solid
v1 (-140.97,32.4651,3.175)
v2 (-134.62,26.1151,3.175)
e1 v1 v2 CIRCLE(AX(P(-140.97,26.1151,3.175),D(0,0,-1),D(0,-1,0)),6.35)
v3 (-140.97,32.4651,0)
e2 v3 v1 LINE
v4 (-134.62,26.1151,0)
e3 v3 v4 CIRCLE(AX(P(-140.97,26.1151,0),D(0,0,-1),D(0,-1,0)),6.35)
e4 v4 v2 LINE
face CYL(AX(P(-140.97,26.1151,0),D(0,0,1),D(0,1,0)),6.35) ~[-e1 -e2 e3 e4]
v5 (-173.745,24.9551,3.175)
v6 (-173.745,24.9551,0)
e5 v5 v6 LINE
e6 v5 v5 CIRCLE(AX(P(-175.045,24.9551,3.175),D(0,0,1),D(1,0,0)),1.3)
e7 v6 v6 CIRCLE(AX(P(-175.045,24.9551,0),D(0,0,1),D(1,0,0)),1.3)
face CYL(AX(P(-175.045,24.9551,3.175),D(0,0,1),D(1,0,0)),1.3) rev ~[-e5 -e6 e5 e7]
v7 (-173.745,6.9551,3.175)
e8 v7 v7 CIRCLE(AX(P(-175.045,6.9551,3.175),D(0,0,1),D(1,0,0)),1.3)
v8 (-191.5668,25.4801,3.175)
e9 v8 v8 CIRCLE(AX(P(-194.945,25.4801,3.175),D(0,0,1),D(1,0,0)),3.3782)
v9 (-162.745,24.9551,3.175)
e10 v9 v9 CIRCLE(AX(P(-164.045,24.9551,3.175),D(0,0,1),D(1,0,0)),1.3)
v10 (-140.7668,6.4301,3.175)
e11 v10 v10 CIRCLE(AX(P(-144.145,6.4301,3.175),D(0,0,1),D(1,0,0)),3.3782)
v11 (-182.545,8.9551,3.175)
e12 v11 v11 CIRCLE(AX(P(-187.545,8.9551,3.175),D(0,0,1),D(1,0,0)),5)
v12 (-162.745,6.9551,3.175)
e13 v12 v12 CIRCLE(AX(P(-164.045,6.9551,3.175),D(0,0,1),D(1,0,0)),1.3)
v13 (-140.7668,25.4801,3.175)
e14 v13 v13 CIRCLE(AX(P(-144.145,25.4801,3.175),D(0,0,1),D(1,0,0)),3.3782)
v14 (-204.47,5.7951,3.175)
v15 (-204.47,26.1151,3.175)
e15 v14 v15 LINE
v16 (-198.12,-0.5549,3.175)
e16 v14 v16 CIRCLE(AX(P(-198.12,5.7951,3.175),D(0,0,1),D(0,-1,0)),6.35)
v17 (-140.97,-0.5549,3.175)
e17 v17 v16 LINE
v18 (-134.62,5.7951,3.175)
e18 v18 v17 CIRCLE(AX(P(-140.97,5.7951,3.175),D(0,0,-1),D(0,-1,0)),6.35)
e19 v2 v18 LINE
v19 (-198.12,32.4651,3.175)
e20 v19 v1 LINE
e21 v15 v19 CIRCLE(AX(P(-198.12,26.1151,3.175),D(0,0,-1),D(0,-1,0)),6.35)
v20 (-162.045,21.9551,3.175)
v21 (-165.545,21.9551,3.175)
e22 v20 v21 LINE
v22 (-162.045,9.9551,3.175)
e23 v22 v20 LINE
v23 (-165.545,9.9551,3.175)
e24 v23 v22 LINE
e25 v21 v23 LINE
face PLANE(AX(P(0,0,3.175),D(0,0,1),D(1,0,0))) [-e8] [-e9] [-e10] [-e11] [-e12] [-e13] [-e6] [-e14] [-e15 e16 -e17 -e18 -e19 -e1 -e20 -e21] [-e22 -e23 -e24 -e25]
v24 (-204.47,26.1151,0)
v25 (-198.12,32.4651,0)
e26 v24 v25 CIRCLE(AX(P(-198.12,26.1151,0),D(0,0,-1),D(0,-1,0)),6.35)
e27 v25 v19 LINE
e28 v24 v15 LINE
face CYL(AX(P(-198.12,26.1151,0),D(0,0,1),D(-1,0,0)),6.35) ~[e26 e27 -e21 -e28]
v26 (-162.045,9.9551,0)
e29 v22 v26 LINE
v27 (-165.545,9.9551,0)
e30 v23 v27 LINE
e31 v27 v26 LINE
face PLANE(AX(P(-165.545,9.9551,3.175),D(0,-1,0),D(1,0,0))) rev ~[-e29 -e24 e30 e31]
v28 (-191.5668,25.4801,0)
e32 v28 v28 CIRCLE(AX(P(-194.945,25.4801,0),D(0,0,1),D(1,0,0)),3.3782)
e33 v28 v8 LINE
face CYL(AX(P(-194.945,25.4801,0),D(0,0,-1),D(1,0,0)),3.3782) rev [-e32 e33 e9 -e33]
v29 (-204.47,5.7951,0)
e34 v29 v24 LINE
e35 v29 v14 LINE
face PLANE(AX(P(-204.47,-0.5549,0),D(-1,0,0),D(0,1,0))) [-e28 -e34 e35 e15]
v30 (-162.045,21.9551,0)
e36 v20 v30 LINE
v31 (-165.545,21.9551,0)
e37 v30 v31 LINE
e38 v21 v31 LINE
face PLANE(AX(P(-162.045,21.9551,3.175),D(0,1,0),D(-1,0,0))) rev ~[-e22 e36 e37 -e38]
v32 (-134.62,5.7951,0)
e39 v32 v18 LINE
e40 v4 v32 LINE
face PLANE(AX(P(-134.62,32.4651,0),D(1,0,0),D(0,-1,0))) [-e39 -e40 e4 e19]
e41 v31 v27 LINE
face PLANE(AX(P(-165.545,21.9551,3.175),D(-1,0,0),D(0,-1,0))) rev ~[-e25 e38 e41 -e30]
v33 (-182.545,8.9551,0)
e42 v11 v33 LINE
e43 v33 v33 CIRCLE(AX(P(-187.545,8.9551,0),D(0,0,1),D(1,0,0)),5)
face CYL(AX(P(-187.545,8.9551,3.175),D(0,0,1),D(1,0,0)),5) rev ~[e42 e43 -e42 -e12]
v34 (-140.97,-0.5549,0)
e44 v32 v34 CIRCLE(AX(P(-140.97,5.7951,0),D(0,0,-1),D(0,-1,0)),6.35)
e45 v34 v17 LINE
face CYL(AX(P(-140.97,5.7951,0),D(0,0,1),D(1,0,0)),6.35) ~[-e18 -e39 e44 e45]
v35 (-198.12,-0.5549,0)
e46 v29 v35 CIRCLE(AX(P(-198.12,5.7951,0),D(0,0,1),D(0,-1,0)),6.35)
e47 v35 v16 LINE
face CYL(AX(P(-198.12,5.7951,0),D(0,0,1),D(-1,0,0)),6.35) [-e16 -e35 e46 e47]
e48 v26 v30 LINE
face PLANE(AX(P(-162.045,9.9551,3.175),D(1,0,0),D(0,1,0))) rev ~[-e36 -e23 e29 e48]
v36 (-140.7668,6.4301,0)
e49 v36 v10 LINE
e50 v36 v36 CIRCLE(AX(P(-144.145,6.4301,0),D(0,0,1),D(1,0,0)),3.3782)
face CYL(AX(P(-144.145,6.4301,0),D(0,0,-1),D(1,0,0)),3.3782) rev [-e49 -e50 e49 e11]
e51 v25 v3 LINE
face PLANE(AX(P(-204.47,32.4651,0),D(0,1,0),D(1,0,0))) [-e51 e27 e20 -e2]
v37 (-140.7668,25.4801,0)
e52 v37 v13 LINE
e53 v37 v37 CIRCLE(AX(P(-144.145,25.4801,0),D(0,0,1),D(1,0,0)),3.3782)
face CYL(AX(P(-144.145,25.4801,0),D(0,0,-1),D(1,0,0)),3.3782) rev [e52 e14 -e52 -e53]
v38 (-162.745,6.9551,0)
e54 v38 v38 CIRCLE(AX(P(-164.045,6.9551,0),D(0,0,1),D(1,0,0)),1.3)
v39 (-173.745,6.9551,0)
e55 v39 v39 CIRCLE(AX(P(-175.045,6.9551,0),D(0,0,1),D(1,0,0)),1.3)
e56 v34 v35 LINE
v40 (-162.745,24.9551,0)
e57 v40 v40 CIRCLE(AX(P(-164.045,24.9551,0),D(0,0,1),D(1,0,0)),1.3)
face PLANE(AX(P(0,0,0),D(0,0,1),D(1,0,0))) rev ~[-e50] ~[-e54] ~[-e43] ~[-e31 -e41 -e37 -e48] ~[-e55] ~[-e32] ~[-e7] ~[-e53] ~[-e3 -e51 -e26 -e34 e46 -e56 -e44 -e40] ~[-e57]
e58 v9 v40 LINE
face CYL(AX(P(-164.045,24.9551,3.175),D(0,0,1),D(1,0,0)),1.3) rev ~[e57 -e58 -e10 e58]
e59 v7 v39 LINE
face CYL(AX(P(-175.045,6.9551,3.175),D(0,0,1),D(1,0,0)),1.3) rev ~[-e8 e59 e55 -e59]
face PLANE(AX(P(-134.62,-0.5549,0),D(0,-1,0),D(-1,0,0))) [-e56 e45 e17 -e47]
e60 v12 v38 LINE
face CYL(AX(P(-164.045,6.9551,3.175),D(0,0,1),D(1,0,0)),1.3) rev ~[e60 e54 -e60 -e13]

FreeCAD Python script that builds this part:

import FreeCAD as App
import Part
import Sketcher
Q = App.Units.Quantity


def edges_at(feature, points):
    """Names of the edges that pass closest to the given points."""
    edges = feature.Shape.Edges
    near = lambda p: min(range(len(edges)), key=lambda i: edges[i].distToShape(Part.Vertex(*p))[0])
    return sorted({f"Edge{near(p) + 1}" for p in points})


def add_polygon(sketch, points):
    """Adds a closed chain of lines whose ends are joined by coincident constraints."""
    first, n = sketch.GeometryCount, len(points)
    for a, b in zip(points, points[1:] + points[:1]):
        sketch.addGeometry(Part.LineSegment(App.Vector(*a, 0), App.Vector(*b, 0)), False)
    for i in range(n):
        sketch.addConstraint(Sketcher.Constraint("Coincident", first + i, 2, first + (i + 1) % n, 1))

doc = App.newDocument("Part")
body = doc.addObject("PartDesign::Body", "Body")

# Sketch on XY plane
sketch1 = body.newObject("Sketcher::SketchObject", "Sketch")
sketch1.AttachmentSupport = (doc.getObject("XY_Plane"), [""])
sketch1.MapMode = "FlatFace"
add_polygon(sketch1, [(-204.5, 32.5), (-204.5, -0.6), (-134.6, -0.6), (-134.6, 32.5)])  # lines 0-3
sketch1.addGeometry(Part.Circle(App.Vector(-144.1, 25.5, 0), App.Vector(0, 0, 1), 3.4), False)  # 4
sketch1.addGeometry(Part.Circle(App.Vector(-144.1, 6.4, 0), App.Vector(0, 0, 1), 3.4), False)  # 5
sketch1.addGeometry(Part.Circle(App.Vector(-194.9, 25.5, 0), App.Vector(0, 0, 1), 3.4), False)  # 6
sketch1.addConstraint([
    Sketcher.Constraint("Vertical", 0),
    Sketcher.Constraint("Horizontal", 1),
    Sketcher.Constraint("Vertical", 2),
    Sketcher.Constraint("Horizontal", 3),
    Sketcher.Constraint("Equal", 4, 5),
    Sketcher.Constraint("Equal", 5, 6),
    Sketcher.Constraint("Horizontal", 4, 3, 6, 3),
    Sketcher.Constraint("Vertical", 4, 3, 5, 3),
    Sketcher.Constraint("Diameter", 4, Q("0.266 in")),
    Sketcher.Constraint("DistanceY", 0, 2, 0, 1, Q("1.3 in")),
    Sketcher.Constraint("DistanceX", 6, 3, 4, 3, Q("2 in")),
    Sketcher.Constraint("DistanceX", 1, 1, 1, 2, Q("2.75 in")),
    Sketcher.Constraint("DistanceX", 1, 2, -1, 1, Q("5.3 in")),
    Sketcher.Constraint("DistanceY", 5, 3, 4, 3, Q("0.75 in")),
    Sketcher.Constraint("DistanceX", 4, 3, -1, 1, Q("5.675 in")),
    Sketcher.Constraint("DistanceY", 0, 2, 6, 3, Q("1.025 in")),
    Sketcher.Constraint("DistanceY", -1, 1, 4, 3, 25.48),
])
pad1 = body.newObject("PartDesign::Pad", "Pad")
pad1.Profile = sketch1
pad1.Length = Q("0.125 in")
doc.recompute()

fillet = body.newObject("PartDesign::Fillet", "Fillet")
fillet.Base = (pad1, edges_at(pad1, [
    (-204.47, 32.465, 1.587),
    (-204.47, -0.555, 1.587),
    (-134.62, 32.465, 1.587),
    (-134.62, -0.555, 1.587),
]))
fillet.Radius = Q("0.25 in")

# Sketch on XY plane
sketch2 = body.newObject("Sketcher::SketchObject", "Sketch001")
sketch2.AttachmentSupport = (doc.getObject("XY_Plane"), [""])
sketch2.MapMode = "FlatFace"
sketch2.AttachmentOffset = App.Placement(App.Vector(0, 0, 0.125 * 25.4), App.Rotation())
sketch2.addGeometry(Part.Circle(App.Vector(-175, 25, 0), App.Vector(0, 0, 1), 1.3), False)  # 0
sketch2.addGeometry(Part.Circle(App.Vector(-164, 25, 0), App.Vector(0, 0, 1), 1.3), False)  # 1
sketch2.addGeometry(Part.Circle(App.Vector(-175, 7, 0), App.Vector(0, 0, 1), 1.3), False)  # 2
sketch2.addGeometry(Part.Circle(App.Vector(-164, 7, 0), App.Vector(0, 0, 1), 1.3), False)  # 3
add_polygon(sketch2, [(-162, 22), (-165.5, 22), (-165.5, 10), (-162, 10)])  # lines 4-7
sketch2.addGeometry(Part.Circle(App.Vector(-187.5, 9, 0), App.Vector(0, 0, 1), 5), False)  # 8
sketch2.addConstraint([
    Sketcher.Constraint("Horizontal", 4),
    Sketcher.Constraint("Vertical", 5),
    Sketcher.Constraint("Horizontal", 6),
    Sketcher.Constraint("Vertical", 7),
    Sketcher.Constraint("Equal", 0, 1),
    Sketcher.Constraint("Equal", 1, 2),
    Sketcher.Constraint("Equal", 2, 3),
    Sketcher.Constraint("Horizontal", 0, 3, 1, 3),
    Sketcher.Constraint("Horizontal", 2, 3, 3, 3),
    Sketcher.Constraint("Vertical", 0, 3, 2, 3),
    Sketcher.Constraint("Vertical", 1, 3, 3, 3),
    Sketcher.Constraint("Diameter", 8, Q("0.3937 in")),
    Sketcher.Constraint("Diameter", 0, 2.6),
    Sketcher.Constraint("DistanceX", 4, 2, 4, 1, Q("0.1378 in")),
    Sketcher.Constraint("DistanceY", 5, 2, 5, 1, 12.0),
    Sketcher.Constraint("DistanceX", 0, 3, 1, 3, 11.0),
    Sketcher.Constraint("DistanceY", 2, 3, 0, 3, 18.0),
    Sketcher.Constraint("DistanceX", 8, 3, 3, 3, Q("0.9252 in")),
    Sketcher.Constraint("DistanceY", 4, 2, 1, 3, Q("0.1181 in")),
    Sketcher.Constraint("DistanceY", 8, 3, 4, 2, Q("0.5118 in")),
    Sketcher.Constraint("DistanceX", 2, 3, 6, 2, Q("0.5118 in")),
    Sketcher.Constraint("DistanceX", 0, 3, -1, 1, 175.045),
    Sketcher.Constraint("DistanceY", -1, 1, 0, 3, 24.955),
])
pocket1 = body.newObject("PartDesign::Pocket", "Pocket")
pocket1.Profile = sketch2
pocket1.Type = "ThroughAll"

doc.recompute()
